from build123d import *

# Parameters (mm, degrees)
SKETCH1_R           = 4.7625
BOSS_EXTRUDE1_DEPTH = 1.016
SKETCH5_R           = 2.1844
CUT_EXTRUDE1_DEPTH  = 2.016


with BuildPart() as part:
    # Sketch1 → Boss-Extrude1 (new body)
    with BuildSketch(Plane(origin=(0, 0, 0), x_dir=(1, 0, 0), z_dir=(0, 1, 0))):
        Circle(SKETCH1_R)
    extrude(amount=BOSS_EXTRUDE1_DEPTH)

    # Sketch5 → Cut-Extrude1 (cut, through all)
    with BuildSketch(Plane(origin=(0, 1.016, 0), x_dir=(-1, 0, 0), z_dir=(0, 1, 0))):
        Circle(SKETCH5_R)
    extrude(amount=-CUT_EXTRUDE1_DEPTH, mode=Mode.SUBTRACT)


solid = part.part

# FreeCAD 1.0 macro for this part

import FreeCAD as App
import Part
import Sketcher
from FreeCAD import Vector
Q = App.Units.Quantity

doc = App.newDocument("Part")
body = doc.addObject("PartDesign::Body", "Body")

# Sketch on XZ plane
sketch1 = doc.addObject("Sketcher::SketchObject", "Sketch")
body.addObject(sketch1)
sketch1.AttachmentSupport = (doc.XZ_Plane, [""])
sketch1.MapMode = "FlatFace"
sketch1.addGeometry(Part.Circle(Vector(0, 0, 0), Vector(0, 0, 1), 4.8), False)
sketch1.addConstraint([
    Sketcher.Constraint("Coincident", 0, 3, -1, 1),
    Sketcher.Constraint("Diameter", 0, Q("0.375 in")),
])
pad1 = doc.addObject("PartDesign::Pad", "Pad")
body.addObject(pad1)
pad1.Profile = sketch1
pad1.Length = Q("0.04 in")
pad1.Reversed = True

# Sketch on XZ plane
sketch2 = doc.addObject("Sketcher::SketchObject", "Sketch001")
body.addObject(sketch2)
sketch2.AttachmentSupport = (doc.XZ_Plane, [""])
sketch2.MapMode = "FlatFace"
sketch2.AttachmentOffset = App.Placement(Vector(0, 0, -0.04 * 25.4), App.Rotation())
sketch2.addGeometry(Part.Circle(Vector(0, 0, 0), Vector(0, 0, 1), 2.2), False)
sketch2.addConstraint([
    Sketcher.Constraint("Coincident", 0, 3, -1, 1),
    Sketcher.Constraint("Diameter", 0, Q("0.172 in")),
])
pocket1 = doc.addObject("PartDesign::Pocket", "Pocket")
body.addObject(pocket1)
pocket1.Profile = sketch2
pocket1.Type = "ThroughAll"
pocket1.Reversed = True

doc.recompute()
